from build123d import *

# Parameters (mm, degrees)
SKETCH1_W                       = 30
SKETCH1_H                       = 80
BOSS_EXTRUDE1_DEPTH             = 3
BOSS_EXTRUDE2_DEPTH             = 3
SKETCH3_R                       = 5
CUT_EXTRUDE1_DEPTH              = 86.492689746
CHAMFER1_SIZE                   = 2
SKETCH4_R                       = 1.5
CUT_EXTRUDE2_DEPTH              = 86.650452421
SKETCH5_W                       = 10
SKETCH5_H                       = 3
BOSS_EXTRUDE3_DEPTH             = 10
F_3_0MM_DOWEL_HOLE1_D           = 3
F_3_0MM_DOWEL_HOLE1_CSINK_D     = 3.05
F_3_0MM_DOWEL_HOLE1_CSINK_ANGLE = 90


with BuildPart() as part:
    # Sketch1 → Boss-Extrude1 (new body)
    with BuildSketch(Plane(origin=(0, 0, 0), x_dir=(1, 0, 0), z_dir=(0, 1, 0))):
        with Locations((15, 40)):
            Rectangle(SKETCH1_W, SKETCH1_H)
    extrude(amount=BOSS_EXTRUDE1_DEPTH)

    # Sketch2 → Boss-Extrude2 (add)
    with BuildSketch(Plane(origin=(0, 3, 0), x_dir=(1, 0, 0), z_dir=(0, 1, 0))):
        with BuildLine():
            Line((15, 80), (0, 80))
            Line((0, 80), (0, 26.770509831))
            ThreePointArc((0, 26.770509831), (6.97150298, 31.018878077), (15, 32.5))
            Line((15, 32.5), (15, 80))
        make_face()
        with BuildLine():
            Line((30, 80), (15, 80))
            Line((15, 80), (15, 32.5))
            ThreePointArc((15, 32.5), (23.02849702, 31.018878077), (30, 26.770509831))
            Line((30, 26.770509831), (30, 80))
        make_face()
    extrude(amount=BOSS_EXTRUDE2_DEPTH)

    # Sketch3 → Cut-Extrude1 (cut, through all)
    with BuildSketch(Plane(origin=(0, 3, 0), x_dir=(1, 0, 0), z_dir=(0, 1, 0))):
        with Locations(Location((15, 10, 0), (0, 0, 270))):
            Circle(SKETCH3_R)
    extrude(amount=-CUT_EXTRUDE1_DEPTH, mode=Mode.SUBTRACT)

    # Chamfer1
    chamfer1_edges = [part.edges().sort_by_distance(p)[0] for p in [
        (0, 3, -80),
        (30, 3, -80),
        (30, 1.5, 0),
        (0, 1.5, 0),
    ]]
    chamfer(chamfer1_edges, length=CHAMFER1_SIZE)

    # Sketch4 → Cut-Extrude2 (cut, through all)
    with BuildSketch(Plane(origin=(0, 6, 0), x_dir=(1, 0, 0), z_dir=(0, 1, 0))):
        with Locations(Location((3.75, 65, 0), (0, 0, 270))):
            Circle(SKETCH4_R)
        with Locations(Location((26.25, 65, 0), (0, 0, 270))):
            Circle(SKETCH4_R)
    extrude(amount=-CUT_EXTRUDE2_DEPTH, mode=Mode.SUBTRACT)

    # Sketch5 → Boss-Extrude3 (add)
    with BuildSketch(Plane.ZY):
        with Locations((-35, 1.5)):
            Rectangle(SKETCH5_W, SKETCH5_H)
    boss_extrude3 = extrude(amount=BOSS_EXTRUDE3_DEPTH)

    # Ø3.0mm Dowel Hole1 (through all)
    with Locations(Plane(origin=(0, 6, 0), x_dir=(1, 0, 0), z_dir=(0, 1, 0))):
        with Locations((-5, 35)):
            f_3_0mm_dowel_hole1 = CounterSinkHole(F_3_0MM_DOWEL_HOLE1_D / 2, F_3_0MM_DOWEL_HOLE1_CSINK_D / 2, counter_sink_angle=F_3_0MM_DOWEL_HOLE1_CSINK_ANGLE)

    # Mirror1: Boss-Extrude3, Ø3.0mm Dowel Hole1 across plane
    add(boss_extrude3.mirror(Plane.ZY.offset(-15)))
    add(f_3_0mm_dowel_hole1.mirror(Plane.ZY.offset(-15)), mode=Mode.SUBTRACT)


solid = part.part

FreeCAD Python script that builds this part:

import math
import FreeCAD as App
import Part
import Sketcher
Q = App.Units.Quantity


def edges_at(feature, points):
    """Names of the edges that pass closest to the given points."""
    edges = feature.Shape.Edges
    near = lambda p: min(range(len(edges)), key=lambda i: edges[i].distToShape(Part.Vertex(*p))[0])
    return sorted({f"Edge{near(p) + 1}" for p in points})


def add_polygon(sketch, points):
    """Adds a closed chain of lines whose ends are joined by coincident constraints."""
    first, n = sketch.GeometryCount, len(points)
    for a, b in zip(points, points[1:] + points[:1]):
        sketch.addGeometry(Part.LineSegment(App.Vector(*a, 0), App.Vector(*b, 0)), False)
    for i in range(n):
        sketch.addConstraint(Sketcher.Constraint("Coincident", first + i, 2, first + (i + 1) % n, 1))

doc = App.newDocument("Part")
body = doc.addObject("PartDesign::Body", "Body")

# Sketch on XZ plane
sketch1 = doc.addObject("Sketcher::SketchObject", "Sketch")
body.addObject(sketch1)
sketch1.AttachmentSupport = (doc.XZ_Plane, [""])
sketch1.MapMode = "FlatFace"
add_polygon(sketch1, [(0, -80), (0, 0), (30, 0), (30, -80)])  # lines 0-3
sketch1.addConstraint(Sketcher.Constraint("Vertical", 0))
sketch1.addConstraint(Sketcher.Constraint("Horizontal", 1))
sketch1.addConstraint(Sketcher.Constraint("Vertical", 2))
sketch1.addConstraint(Sketcher.Constraint("Horizontal", 3))
sketch1.addConstraint(Sketcher.Constraint("Coincident", 0, 2, -1, 1))
sketch1.addConstraint(Sketcher.Constraint("DistanceX", 1, 1, 1, 2, Q("30 mm")))
sketch1.addConstraint(Sketcher.Constraint("DistanceY", 0, 1, 0, 2, Q("80 mm")))
pad1 = doc.addObject("PartDesign::Pad", "Pad")
body.addObject(pad1)
pad1.Profile = sketch1
pad1.Length = 3
pad1.Reversed = True

# Sketch on XZ plane
sketch2 = doc.addObject("Sketcher::SketchObject", "Sketch001")
body.addObject(sketch2)
sketch2.AttachmentSupport = (doc.XZ_Plane, [""])
sketch2.MapMode = "FlatFace"
sketch2.AttachmentOffset = App.Placement(App.Vector(0, 0, -3), App.Rotation())
sketch2.addGeometry(Part.LineSegment(App.Vector(0, -80, 0), App.Vector(0, -26.77051, 0)), False)
sketch2.addGeometry(Part.ArcOfCircle(Part.Circle(App.Vector(15, -10, 0), App.Vector(0, 0, 1), 22.5), math.radians(-131.810315), math.radians(-90)), False)
sketch2.addGeometry(Part.ArcOfCircle(Part.Circle(App.Vector(15, -10, 0), App.Vector(0, 0, 1), 22.5), math.radians(-90), math.radians(-48.189685)), False)
sketch2.addGeometry(Part.LineSegment(App.Vector(30, -26.77051, 0), App.Vector(30, -80, 0)), False)
sketch2.addGeometry(Part.LineSegment(App.Vector(30, -80, 0), App.Vector(0, -80, 0)), False)
sketch2.addConstraint(Sketcher.Constraint("Coincident", 0, 2, 1, 1))
sketch2.addConstraint(Sketcher.Constraint("Tangent", 1, 2, 2, 1))
sketch2.addConstraint(Sketcher.Constraint("Coincident", 2, 2, 3, 1))
sketch2.addConstraint(Sketcher.Constraint("Coincident", 3, 2, 4, 1))
sketch2.addConstraint(Sketcher.Constraint("Coincident", 4, 2, 0, 1))
sketch2.addConstraint(Sketcher.Constraint("Vertical", 0))
sketch2.addConstraint(Sketcher.Constraint("Vertical", 3))
sketch2.addConstraint(Sketcher.Constraint("Horizontal", 4))
sketch2.addConstraint(Sketcher.Constraint("Equal", 1, 2))
sketch2.addConstraint(Sketcher.Constraint("PointOnObject", 0, 2, -2))
sketch2.addConstraint(Sketcher.Constraint("Horizontal", 0, 2, 2, 2))
sketch2.addConstraint(Sketcher.Constraint("Vertical", 2, 3, 1, 2))
sketch2.addConstraint(Sketcher.Constraint("Radius", 1, Q("22.5 mm")))
sketch2.addConstraint(Sketcher.Constraint("DistanceX", 4, 2, 4, 1, Q("30 mm")))
sketch2.addConstraint(Sketcher.Constraint("DistanceY", 1, 3, -1, 1, Q("10 mm")))
sketch2.addConstraint(Sketcher.Constraint("DistanceY", 3, 2, -1, 1, Q("80 mm")))
pad2 = doc.addObject("PartDesign::Pad", "Pad001")
body.addObject(pad2)
pad2.Profile = sketch2
pad2.Length = 3
pad2.Reversed = True

# Sketch on XZ plane
sketch3 = doc.addObject("Sketcher::SketchObject", "Sketch002")
body.addObject(sketch3)
sketch3.AttachmentSupport = (doc.XZ_Plane, [""])
sketch3.MapMode = "FlatFace"
sketch3.AttachmentOffset = App.Placement(App.Vector(0, 0, -3), App.Rotation())
sketch3.addGeometry(Part.Circle(App.Vector(15, -10, 0), App.Vector(0, 0, 1), 5), False)
sketch3.addConstraint(Sketcher.Constraint("Diameter", 0, Q("10 mm")))
sketch3.addConstraint(Sketcher.Constraint("DistanceX", -1, 1, 0, 3, Q("15 mm")))
sketch3.addConstraint(Sketcher.Constraint("DistanceY", 0, 3, -1, 1, Q("10 mm")))
pocket1 = doc.addObject("PartDesign::Pocket", "Pocket")
body.addObject(pocket1)
pocket1.Profile = sketch3
pocket1.Type = "ThroughAll"
pocket1.Reversed = True
doc.recompute()

chamfer = doc.addObject("PartDesign::Chamfer", "Chamfer")
body.addObject(chamfer)
chamfer.Base = (pocket1, edges_at(pocket1, [
    (0, 3, -80),
    (30, 3, -80),
    (30, 1.5, 0),
    (0, 1.5, 0),
]))
chamfer.Size = 2

# Sketch on XZ plane
sketch4 = doc.addObject("Sketcher::SketchObject", "Sketch003")
body.addObject(sketch4)
sketch4.AttachmentSupport = (doc.XZ_Plane, [""])
sketch4.MapMode = "FlatFace"
sketch4.AttachmentOffset = App.Placement(App.Vector(0, 0, -6), App.Rotation())
sketch4.addGeometry(Part.Circle(App.Vector(3.75, -65, 0), App.Vector(0, 0, 1), 1.5), False)
sketch4.addGeometry(Part.Circle(App.Vector(26.25, -65, 0), App.Vector(0, 0, 1), 1.5), False)
sketch4.addConstraint(Sketcher.Constraint("Equal", 0, 1))
sketch4.addConstraint(Sketcher.Constraint("Horizontal", 0, 3, 1, 3))
sketch4.addConstraint(Sketcher.Constraint("Diameter", 0, Q("3 mm")))
sketch4.addConstraint(Sketcher.Constraint("DistanceY", 0, 3, -1, 1, Q("65 mm")))
sketch4.addConstraint(Sketcher.Constraint("DistanceX", 0, 3, 1, 3, Q("22.5 mm")))
sketch4.addConstraint(Sketcher.Constraint("DistanceX", -1, 1, 0, 3, Q("3.75 mm")))
pocket2 = doc.addObject("PartDesign::Pocket", "Pocket001")
body.addObject(pocket2)
pocket2.Profile = sketch4
pocket2.Type = "ThroughAll"
pocket2.Reversed = True

# Sketch on YZ plane
sketch5 = doc.addObject("Sketcher::SketchObject", "Sketch004")
body.addObject(sketch5)
sketch5.AttachmentSupport = (doc.YZ_Plane, [""])
sketch5.MapMode = "FlatFace"
add_polygon(sketch5, [(3, -40), (0, -40), (0, -30), (3, -30)])  # lines 0-3
sketch5.addConstraint(Sketcher.Constraint("Horizontal", 0))
sketch5.addConstraint(Sketcher.Constraint("Vertical", 1))
sketch5.addConstraint(Sketcher.Constraint("Horizontal", 2))
sketch5.addConstraint(Sketcher.Constraint("Vertical", 3))
sketch5.addConstraint(Sketcher.Constraint("PointOnObject", 0, 2, -2))
sketch5.addConstraint(Sketcher.Constraint("DistanceX", 0, 2, 0, 1, Q("3 mm")))
sketch5.addConstraint(Sketcher.Constraint("DistanceY", 1, 1, 1, 2, Q("10 mm")))
sketch5.addConstraint(Sketcher.Constraint("DistanceY", 0, 2, -1, 1, Q("40 mm")))
pad3 = doc.addObject("PartDesign::Pad", "Pad002")
body.addObject(pad3)
pad3.Profile = sketch5
pad3.Length = 10
pad3.Reversed = True

# Sketch on XZ plane
sketch6 = doc.addObject("Sketcher::SketchObject", "Sketch005")
body.addObject(sketch6)
sketch6.AttachmentSupport = (doc.XZ_Plane, [""])
sketch6.MapMode = "FlatFace"
sketch6.AttachmentOffset = App.Placement(App.Vector(0, 0, -6), App.Rotation())
sketch6.addGeometry(Part.Circle(App.Vector(-5, -35, 0), App.Vector(0, 0, 1), 1.5), False)
sketch6.addConstraint(Sketcher.Constraint("Diameter", 0, Q("3 mm")))
sketch6.addConstraint(Sketcher.Constraint("DistanceX", 0, 3, -1, 1, Q("5 mm")))
sketch6.addConstraint(Sketcher.Constraint("DistanceY", 0, 3, -1, 1, Q("35 mm")))
doc.recompute()
hole = doc.addObject("PartDesign::Hole", "Hole")
body.addObject(hole)
hole.Profile = sketch6
hole.ThreadType = "None"
hole.Diameter = 3
hole.DepthType = "ThroughAll"
hole.HoleCutType = "Countersink"
hole.HoleCutDiameter = 3.05
hole.HoleCutCountersinkAngle = 90
hole.Reversed = True
doc.recompute()

datumplane = doc.addObject("PartDesign::Plane", "DatumPlane")
body.addObject(datumplane)
datumplane.AttachmentSupport = (doc.YZ_Plane, [""])
datumplane.MapMode = "FlatFace"
datumplane.AttachmentOffset = App.Placement(App.Vector(0, 0, 15), App.Rotation())
mirrored = doc.addObject("PartDesign::Mirrored", "Mirrored")
body.addObject(mirrored)
mirrored.Originals = [pad3, hole]
mirrored.MirrorPlane = (datumplane, [""])
body.Tip = mirrored

doc.recompute()
